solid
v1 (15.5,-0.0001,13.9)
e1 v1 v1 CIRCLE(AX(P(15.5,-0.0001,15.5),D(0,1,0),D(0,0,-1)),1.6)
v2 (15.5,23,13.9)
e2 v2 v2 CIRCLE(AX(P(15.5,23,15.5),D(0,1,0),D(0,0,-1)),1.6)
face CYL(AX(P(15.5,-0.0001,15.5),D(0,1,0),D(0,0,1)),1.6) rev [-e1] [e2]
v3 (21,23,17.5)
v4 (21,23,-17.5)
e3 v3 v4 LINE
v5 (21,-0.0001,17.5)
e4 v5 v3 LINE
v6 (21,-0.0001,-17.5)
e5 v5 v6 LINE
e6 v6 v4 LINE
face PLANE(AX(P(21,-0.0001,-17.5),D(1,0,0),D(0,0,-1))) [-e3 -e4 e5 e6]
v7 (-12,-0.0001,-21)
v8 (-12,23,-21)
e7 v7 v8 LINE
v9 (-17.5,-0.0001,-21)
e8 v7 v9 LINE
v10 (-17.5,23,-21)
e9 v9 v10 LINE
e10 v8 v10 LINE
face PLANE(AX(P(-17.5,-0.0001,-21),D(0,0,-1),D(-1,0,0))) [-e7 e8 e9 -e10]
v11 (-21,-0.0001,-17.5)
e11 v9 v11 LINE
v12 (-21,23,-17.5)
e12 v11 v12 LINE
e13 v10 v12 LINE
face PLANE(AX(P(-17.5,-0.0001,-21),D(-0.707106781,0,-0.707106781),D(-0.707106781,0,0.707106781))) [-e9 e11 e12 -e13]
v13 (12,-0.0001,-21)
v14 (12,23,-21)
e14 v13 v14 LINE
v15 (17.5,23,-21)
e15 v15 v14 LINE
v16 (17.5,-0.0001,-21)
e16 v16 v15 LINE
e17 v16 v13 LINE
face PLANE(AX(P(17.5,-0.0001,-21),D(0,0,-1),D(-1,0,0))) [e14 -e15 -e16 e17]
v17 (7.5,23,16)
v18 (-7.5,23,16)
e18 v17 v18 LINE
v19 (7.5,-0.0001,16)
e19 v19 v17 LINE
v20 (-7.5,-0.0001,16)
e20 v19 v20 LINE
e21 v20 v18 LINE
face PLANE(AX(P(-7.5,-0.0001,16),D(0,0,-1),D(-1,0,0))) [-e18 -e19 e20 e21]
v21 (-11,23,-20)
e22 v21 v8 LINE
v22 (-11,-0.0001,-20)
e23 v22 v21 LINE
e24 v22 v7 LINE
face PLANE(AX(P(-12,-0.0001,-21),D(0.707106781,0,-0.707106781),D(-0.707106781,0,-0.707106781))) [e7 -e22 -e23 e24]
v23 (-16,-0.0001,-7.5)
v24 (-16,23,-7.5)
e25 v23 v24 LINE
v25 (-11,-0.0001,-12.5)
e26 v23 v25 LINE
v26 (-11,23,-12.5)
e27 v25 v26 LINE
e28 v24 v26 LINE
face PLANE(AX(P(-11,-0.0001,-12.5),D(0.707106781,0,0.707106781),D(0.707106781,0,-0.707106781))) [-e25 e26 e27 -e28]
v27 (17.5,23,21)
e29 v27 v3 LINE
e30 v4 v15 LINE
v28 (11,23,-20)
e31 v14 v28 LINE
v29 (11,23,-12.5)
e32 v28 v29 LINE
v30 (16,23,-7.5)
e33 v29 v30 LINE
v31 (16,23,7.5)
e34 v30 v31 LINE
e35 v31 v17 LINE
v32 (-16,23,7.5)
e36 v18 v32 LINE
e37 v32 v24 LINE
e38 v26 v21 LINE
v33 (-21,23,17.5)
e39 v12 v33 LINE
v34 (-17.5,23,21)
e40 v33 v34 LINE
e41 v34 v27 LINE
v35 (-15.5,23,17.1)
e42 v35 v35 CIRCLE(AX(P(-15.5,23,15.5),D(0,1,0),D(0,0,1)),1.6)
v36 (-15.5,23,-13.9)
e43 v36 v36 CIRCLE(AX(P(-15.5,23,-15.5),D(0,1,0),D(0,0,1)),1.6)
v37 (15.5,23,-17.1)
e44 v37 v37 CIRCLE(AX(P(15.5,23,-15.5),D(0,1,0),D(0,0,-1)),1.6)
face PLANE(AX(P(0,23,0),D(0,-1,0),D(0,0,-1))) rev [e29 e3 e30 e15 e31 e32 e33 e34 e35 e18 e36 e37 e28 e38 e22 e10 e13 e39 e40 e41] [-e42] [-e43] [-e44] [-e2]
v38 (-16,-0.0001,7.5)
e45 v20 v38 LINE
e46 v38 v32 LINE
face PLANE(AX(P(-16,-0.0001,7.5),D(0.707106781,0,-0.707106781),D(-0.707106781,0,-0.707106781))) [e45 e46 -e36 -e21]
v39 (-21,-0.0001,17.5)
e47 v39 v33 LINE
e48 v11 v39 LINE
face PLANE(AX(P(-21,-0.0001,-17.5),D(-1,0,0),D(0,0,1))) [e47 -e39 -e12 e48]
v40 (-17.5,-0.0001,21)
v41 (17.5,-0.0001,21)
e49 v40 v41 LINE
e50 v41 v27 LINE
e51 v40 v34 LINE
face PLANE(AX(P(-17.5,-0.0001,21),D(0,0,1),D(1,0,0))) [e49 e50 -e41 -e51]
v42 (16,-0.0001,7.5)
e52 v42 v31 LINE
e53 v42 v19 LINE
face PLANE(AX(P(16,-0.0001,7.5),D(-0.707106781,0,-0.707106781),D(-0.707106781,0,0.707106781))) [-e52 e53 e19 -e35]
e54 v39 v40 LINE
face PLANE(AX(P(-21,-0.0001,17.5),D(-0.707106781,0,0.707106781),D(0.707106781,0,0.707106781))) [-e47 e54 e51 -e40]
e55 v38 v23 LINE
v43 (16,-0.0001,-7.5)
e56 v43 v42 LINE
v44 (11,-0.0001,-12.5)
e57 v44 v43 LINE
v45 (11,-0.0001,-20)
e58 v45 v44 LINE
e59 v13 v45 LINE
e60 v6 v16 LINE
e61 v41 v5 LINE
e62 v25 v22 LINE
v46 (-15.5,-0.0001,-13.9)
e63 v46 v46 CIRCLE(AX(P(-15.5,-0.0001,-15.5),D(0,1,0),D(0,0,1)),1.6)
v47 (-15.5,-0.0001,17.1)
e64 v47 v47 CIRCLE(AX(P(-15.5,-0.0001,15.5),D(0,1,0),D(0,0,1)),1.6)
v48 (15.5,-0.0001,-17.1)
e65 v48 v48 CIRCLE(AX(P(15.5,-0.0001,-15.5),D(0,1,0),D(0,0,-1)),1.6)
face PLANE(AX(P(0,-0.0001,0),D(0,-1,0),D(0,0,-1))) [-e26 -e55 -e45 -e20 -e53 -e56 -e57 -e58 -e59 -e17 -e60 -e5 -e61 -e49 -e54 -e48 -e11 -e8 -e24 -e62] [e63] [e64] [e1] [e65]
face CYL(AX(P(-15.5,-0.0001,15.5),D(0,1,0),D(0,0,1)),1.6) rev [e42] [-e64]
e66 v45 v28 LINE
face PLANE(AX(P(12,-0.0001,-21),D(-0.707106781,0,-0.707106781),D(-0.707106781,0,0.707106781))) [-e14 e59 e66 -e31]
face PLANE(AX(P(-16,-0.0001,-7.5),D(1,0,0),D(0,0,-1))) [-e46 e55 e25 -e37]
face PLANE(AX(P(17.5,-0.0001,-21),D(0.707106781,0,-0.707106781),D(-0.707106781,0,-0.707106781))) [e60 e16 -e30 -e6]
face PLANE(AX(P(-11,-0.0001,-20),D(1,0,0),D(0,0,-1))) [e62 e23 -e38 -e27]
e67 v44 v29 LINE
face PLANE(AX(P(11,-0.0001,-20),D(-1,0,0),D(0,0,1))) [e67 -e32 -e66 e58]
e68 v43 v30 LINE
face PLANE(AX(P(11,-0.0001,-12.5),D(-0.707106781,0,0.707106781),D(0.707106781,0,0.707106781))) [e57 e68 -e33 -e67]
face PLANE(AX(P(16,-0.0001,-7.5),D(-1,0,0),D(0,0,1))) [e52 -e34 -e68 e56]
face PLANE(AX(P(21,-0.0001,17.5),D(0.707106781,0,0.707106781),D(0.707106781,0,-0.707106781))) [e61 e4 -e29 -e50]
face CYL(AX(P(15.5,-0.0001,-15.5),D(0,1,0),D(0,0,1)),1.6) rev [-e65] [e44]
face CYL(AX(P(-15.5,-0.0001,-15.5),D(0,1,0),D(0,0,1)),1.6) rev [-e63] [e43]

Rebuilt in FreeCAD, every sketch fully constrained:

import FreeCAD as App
import Part
import Sketcher
Q = App.Units.Quantity

doc = App.newDocument("Part")
params = doc.addObject("Spreadsheet::Sheet", "Params")
for row, (alias, value) in enumerate([
    ("sketch1_diameter", "3.2 mm"),
    ("sketch1_width", "35 mm"),
    ("sketch1_width2", "15 mm"),
    ("sketch1_width3", "5.5 mm"),
    ("sketch1_height", "7.5 mm"),
    ("pad1_length", "23 mm"),
    ("pad1_length2", "0.0001 mm"),
], start=1):
    params.set(f"A{row}", alias)
    params.set(f"B{row}", "=" + value)
    params.setAlias(f"B{row}", alias)

body = doc.addObject("PartDesign::Body", "Body")

sketch1 = body.newObject("Sketcher::SketchObject", "Sketch")
sketch1.AttachmentSupport = (doc.getObject("XZ_Plane"), [""])
sketch1.MapMode = "FlatFace"
sketch1.addGeometry(Part.LineSegment(App.Vector(-7.5, 16, 0), App.Vector(-16, 7.5, 0)), False)
sketch1.addGeometry(Part.LineSegment(App.Vector(-16, 7.5, 0), App.Vector(-16, -7.5, 0)), False)
sketch1.addGeometry(Part.LineSegment(App.Vector(-16, -7.5, 0), App.Vector(-11, -12.5, 0)), False)
sketch1.addGeometry(Part.LineSegment(App.Vector(-11, -12.5, 0), App.Vector(-11, -20, 0)), False)
sketch1.addGeometry(Part.LineSegment(App.Vector(-11, -20, 0), App.Vector(-12, -21, 0)), False)
sketch1.addGeometry(Part.LineSegment(App.Vector(-12, -21, 0), App.Vector(-17.5, -21, 0)), False)
sketch1.addGeometry(Part.LineSegment(App.Vector(-17.5, -21, 0), App.Vector(-21, -17.5, 0)), False)
sketch1.addGeometry(Part.LineSegment(App.Vector(-21, -17.5, 0), App.Vector(-21, 17.5, 0)), False)
sketch1.addGeometry(Part.LineSegment(App.Vector(-21, 17.5, 0), App.Vector(-17.5, 21, 0)), False)
sketch1.addGeometry(Part.LineSegment(App.Vector(-17.5, 21, 0), App.Vector(17.5, 21, 0)), False)
sketch1.addGeometry(Part.LineSegment(App.Vector(17.5, 21, 0), App.Vector(21, 17.5, 0)), False)
sketch1.addGeometry(Part.LineSegment(App.Vector(21, 17.5, 0), App.Vector(21, -17.5, 0)), False)
sketch1.addGeometry(Part.LineSegment(App.Vector(21, -17.5, 0), App.Vector(17.5, -21, 0)), False)
sketch1.addGeometry(Part.LineSegment(App.Vector(17.5, -21, 0), App.Vector(12, -21, 0)), False)
sketch1.addGeometry(Part.LineSegment(App.Vector(12, -21, 0), App.Vector(11, -20, 0)), False)
sketch1.addGeometry(Part.LineSegment(App.Vector(11, -20, 0), App.Vector(11, -12.5, 0)), False)
sketch1.addGeometry(Part.LineSegment(App.Vector(11, -12.5, 0), App.Vector(16, -7.5, 0)), False)
sketch1.addGeometry(Part.LineSegment(App.Vector(16, -7.5, 0), App.Vector(16, 7.5, 0)), False)
sketch1.addGeometry(Part.LineSegment(App.Vector(16, 7.5, 0), App.Vector(7.5, 16, 0)), False)
sketch1.addGeometry(Part.LineSegment(App.Vector(7.5, 16, 0), App.Vector(-7.5, 16, 0)), False)
sketch1.addGeometry(Part.Circle(App.Vector(15.5, 15.5, 0), App.Vector(0, 0, 1), 1.6), False)
sketch1.addGeometry(Part.Circle(App.Vector(-15.5, 15.5, 0), App.Vector(0, 0, 1), 1.6), False)
sketch1.addGeometry(Part.Circle(App.Vector(15.5, -15.5, 0), App.Vector(0, 0, 1), 1.6), False)
sketch1.addGeometry(Part.Circle(App.Vector(-15.5, -15.5, 0), App.Vector(0, 0, 1), 1.6), False)
sketch1.addConstraint(Sketcher.Constraint("Coincident", 0, 2, 1, 1))
sketch1.addConstraint(Sketcher.Constraint("Coincident", 1, 2, 2, 1))
sketch1.addConstraint(Sketcher.Constraint("Coincident", 2, 2, 3, 1))
sketch1.addConstraint(Sketcher.Constraint("Coincident", 3, 2, 4, 1))
sketch1.addConstraint(Sketcher.Constraint("Coincident", 4, 2, 5, 1))
sketch1.addConstraint(Sketcher.Constraint("Coincident", 5, 2, 6, 1))
sketch1.addConstraint(Sketcher.Constraint("Coincident", 6, 2, 7, 1))
sketch1.addConstraint(Sketcher.Constraint("Coincident", 7, 2, 8, 1))
sketch1.addConstraint(Sketcher.Constraint("Coincident", 8, 2, 9, 1))
sketch1.addConstraint(Sketcher.Constraint("Coincident", 9, 2, 10, 1))
sketch1.addConstraint(Sketcher.Constraint("Coincident", 10, 2, 11, 1))
sketch1.addConstraint(Sketcher.Constraint("Coincident", 11, 2, 12, 1))
sketch1.addConstraint(Sketcher.Constraint("Coincident", 12, 2, 13, 1))
sketch1.addConstraint(Sketcher.Constraint("Coincident", 13, 2, 14, 1))
sketch1.addConstraint(Sketcher.Constraint("Coincident", 14, 2, 15, 1))
sketch1.addConstraint(Sketcher.Constraint("Coincident", 15, 2, 16, 1))
sketch1.addConstraint(Sketcher.Constraint("Coincident", 16, 2, 17, 1))
sketch1.addConstraint(Sketcher.Constraint("Coincident", 17, 2, 18, 1))
sketch1.addConstraint(Sketcher.Constraint("Coincident", 18, 2, 19, 1))
sketch1.addConstraint(Sketcher.Constraint("Coincident", 19, 2, 0, 1))
sketch1.addConstraint(Sketcher.Constraint("Vertical", 1))
sketch1.addConstraint(Sketcher.Constraint("Vertical", 3))
sketch1.addConstraint(Sketcher.Constraint("Horizontal", 5))
sketch1.addConstraint(Sketcher.Constraint("Vertical", 7))
sketch1.addConstraint(Sketcher.Constraint("Horizontal", 9))
sketch1.addConstraint(Sketcher.Constraint("Vertical", 11))
sketch1.addConstraint(Sketcher.Constraint("Horizontal", 13))
sketch1.addConstraint(Sketcher.Constraint("Vertical", 15))
sketch1.addConstraint(Sketcher.Constraint("Vertical", 17))
sketch1.addConstraint(Sketcher.Constraint("Horizontal", 19))
sketch1.addConstraint(Sketcher.Constraint("Equal", 20, 21))
sketch1.addConstraint(Sketcher.Constraint("Equal", 21, 22))
sketch1.addConstraint(Sketcher.Constraint("Equal", 22, 23))
sketch1.addConstraint(Sketcher.Constraint("Symmetric", 21, 3, 22, 3, -1, 1))
sketch1.addConstraint(Sketcher.Constraint("Symmetric", 20, 3, 23, 3, -1, 1))
sketch1.addConstraint(Sketcher.Constraint("Symmetric", 5, 2, 9, 2, -1, 1))
sketch1.addConstraint(Sketcher.Constraint("Symmetric", 6, 2, 10, 2, -1, 1))
sketch1.addConstraint(Sketcher.Constraint("Symmetric", 8, 2, 12, 2, -1, 1))
sketch1.addConstraint(Sketcher.Constraint("Symmetric", 0, 2, 16, 2, -1, 1))
sketch1.addConstraint(Sketcher.Constraint("Symmetric", 20, 3, 21, 3, -2))
sketch1.addConstraint(Sketcher.Constraint("Symmetric", 3, 2, 14, 2, -2))
sketch1.addConstraint(Sketcher.Constraint("Perpendicular", 0, 2))
sketch1.addConstraint(Sketcher.Constraint("Perpendicular", 2, 4))
sketch1.addConstraint(Sketcher.Constraint("Perpendicular", 4, 6))
sketch1.addConstraint(Sketcher.Constraint("Perpendicular", 6, 8))
sketch1.addConstraint(Sketcher.Constraint("Perpendicular", 10, 12))
sketch1.addConstraint(Sketcher.Constraint("Perpendicular", 12, 14))
sketch1.addConstraint(Sketcher.Constraint("Perpendicular", 14, 16))
sketch1.addConstraint(Sketcher.Constraint("Perpendicular", 16, 18))
sketch1.addConstraint(Sketcher.Constraint("Horizontal", 7, 2, 10, 2))
sketch1.addConstraint(Sketcher.Constraint("Horizontal", 2, 2, 15, 2))
sketch1.addConstraint(Sketcher.Constraint("Horizontal", 1, 2, 16, 2))
sketch1.addConstraint(Sketcher.Constraint("Horizontal", 0, 2, 17, 2))
sketch1.addConstraint(Sketcher.Constraint("Equal", 19, 1))
sketch1.addConstraint(Sketcher.Constraint("Equal", 9, 7))
sketch1.addConstraint(Sketcher.Constraint("Diameter", 20, Q("3.2 mm")))
sketch1.addConstraint(Sketcher.Constraint("DistanceX", 9, 1, 9, 2, Q("35 mm")))
sketch1.addConstraint(Sketcher.Constraint("DistanceX", 19, 2, 19, 1, Q("15 mm")))
sketch1.addConstraint(Sketcher.Constraint("DistanceX", 5, 2, 5, 1, Q("5.5 mm")))
sketch1.addConstraint(Sketcher.Constraint("DistanceY", 3, 2, 3, 1, Q("7.5 mm")))
sketch1.addConstraint(Sketcher.Constraint("DistanceX", 0, 2, -1, 1, Q("16 mm")))
sketch1.addConstraint(Sketcher.Constraint("DistanceX", 2, 2, -1, 1, Q("11 mm")))
sketch1.addConstraint(Sketcher.Constraint("DistanceX", 21, 3, 20, 3, Q("31 mm")))
sketch1.addConstraint(Sketcher.Constraint("DistanceY", 22, 3, 20, 3, Q("31 mm")))
sketch1.setExpression("Constraints[55]", "Params.sketch1_diameter")
sketch1.setExpression("Constraints[56]", "Params.sketch1_width")
sketch1.setExpression("Constraints[57]", "Params.sketch1_width2")
sketch1.setExpression("Constraints[58]", "Params.sketch1_width3")
sketch1.setExpression("Constraints[59]", "Params.sketch1_height")
pad1 = body.newObject("PartDesign::Pad", "Pad")
pad1.Profile = sketch1
pad1.Type = "TwoLengths"
pad1.setExpression("Length", "Params.pad1_length")
pad1.setExpression("Length2", "Params.pad1_length2")
pad1.Reversed = True

doc.recompute()
